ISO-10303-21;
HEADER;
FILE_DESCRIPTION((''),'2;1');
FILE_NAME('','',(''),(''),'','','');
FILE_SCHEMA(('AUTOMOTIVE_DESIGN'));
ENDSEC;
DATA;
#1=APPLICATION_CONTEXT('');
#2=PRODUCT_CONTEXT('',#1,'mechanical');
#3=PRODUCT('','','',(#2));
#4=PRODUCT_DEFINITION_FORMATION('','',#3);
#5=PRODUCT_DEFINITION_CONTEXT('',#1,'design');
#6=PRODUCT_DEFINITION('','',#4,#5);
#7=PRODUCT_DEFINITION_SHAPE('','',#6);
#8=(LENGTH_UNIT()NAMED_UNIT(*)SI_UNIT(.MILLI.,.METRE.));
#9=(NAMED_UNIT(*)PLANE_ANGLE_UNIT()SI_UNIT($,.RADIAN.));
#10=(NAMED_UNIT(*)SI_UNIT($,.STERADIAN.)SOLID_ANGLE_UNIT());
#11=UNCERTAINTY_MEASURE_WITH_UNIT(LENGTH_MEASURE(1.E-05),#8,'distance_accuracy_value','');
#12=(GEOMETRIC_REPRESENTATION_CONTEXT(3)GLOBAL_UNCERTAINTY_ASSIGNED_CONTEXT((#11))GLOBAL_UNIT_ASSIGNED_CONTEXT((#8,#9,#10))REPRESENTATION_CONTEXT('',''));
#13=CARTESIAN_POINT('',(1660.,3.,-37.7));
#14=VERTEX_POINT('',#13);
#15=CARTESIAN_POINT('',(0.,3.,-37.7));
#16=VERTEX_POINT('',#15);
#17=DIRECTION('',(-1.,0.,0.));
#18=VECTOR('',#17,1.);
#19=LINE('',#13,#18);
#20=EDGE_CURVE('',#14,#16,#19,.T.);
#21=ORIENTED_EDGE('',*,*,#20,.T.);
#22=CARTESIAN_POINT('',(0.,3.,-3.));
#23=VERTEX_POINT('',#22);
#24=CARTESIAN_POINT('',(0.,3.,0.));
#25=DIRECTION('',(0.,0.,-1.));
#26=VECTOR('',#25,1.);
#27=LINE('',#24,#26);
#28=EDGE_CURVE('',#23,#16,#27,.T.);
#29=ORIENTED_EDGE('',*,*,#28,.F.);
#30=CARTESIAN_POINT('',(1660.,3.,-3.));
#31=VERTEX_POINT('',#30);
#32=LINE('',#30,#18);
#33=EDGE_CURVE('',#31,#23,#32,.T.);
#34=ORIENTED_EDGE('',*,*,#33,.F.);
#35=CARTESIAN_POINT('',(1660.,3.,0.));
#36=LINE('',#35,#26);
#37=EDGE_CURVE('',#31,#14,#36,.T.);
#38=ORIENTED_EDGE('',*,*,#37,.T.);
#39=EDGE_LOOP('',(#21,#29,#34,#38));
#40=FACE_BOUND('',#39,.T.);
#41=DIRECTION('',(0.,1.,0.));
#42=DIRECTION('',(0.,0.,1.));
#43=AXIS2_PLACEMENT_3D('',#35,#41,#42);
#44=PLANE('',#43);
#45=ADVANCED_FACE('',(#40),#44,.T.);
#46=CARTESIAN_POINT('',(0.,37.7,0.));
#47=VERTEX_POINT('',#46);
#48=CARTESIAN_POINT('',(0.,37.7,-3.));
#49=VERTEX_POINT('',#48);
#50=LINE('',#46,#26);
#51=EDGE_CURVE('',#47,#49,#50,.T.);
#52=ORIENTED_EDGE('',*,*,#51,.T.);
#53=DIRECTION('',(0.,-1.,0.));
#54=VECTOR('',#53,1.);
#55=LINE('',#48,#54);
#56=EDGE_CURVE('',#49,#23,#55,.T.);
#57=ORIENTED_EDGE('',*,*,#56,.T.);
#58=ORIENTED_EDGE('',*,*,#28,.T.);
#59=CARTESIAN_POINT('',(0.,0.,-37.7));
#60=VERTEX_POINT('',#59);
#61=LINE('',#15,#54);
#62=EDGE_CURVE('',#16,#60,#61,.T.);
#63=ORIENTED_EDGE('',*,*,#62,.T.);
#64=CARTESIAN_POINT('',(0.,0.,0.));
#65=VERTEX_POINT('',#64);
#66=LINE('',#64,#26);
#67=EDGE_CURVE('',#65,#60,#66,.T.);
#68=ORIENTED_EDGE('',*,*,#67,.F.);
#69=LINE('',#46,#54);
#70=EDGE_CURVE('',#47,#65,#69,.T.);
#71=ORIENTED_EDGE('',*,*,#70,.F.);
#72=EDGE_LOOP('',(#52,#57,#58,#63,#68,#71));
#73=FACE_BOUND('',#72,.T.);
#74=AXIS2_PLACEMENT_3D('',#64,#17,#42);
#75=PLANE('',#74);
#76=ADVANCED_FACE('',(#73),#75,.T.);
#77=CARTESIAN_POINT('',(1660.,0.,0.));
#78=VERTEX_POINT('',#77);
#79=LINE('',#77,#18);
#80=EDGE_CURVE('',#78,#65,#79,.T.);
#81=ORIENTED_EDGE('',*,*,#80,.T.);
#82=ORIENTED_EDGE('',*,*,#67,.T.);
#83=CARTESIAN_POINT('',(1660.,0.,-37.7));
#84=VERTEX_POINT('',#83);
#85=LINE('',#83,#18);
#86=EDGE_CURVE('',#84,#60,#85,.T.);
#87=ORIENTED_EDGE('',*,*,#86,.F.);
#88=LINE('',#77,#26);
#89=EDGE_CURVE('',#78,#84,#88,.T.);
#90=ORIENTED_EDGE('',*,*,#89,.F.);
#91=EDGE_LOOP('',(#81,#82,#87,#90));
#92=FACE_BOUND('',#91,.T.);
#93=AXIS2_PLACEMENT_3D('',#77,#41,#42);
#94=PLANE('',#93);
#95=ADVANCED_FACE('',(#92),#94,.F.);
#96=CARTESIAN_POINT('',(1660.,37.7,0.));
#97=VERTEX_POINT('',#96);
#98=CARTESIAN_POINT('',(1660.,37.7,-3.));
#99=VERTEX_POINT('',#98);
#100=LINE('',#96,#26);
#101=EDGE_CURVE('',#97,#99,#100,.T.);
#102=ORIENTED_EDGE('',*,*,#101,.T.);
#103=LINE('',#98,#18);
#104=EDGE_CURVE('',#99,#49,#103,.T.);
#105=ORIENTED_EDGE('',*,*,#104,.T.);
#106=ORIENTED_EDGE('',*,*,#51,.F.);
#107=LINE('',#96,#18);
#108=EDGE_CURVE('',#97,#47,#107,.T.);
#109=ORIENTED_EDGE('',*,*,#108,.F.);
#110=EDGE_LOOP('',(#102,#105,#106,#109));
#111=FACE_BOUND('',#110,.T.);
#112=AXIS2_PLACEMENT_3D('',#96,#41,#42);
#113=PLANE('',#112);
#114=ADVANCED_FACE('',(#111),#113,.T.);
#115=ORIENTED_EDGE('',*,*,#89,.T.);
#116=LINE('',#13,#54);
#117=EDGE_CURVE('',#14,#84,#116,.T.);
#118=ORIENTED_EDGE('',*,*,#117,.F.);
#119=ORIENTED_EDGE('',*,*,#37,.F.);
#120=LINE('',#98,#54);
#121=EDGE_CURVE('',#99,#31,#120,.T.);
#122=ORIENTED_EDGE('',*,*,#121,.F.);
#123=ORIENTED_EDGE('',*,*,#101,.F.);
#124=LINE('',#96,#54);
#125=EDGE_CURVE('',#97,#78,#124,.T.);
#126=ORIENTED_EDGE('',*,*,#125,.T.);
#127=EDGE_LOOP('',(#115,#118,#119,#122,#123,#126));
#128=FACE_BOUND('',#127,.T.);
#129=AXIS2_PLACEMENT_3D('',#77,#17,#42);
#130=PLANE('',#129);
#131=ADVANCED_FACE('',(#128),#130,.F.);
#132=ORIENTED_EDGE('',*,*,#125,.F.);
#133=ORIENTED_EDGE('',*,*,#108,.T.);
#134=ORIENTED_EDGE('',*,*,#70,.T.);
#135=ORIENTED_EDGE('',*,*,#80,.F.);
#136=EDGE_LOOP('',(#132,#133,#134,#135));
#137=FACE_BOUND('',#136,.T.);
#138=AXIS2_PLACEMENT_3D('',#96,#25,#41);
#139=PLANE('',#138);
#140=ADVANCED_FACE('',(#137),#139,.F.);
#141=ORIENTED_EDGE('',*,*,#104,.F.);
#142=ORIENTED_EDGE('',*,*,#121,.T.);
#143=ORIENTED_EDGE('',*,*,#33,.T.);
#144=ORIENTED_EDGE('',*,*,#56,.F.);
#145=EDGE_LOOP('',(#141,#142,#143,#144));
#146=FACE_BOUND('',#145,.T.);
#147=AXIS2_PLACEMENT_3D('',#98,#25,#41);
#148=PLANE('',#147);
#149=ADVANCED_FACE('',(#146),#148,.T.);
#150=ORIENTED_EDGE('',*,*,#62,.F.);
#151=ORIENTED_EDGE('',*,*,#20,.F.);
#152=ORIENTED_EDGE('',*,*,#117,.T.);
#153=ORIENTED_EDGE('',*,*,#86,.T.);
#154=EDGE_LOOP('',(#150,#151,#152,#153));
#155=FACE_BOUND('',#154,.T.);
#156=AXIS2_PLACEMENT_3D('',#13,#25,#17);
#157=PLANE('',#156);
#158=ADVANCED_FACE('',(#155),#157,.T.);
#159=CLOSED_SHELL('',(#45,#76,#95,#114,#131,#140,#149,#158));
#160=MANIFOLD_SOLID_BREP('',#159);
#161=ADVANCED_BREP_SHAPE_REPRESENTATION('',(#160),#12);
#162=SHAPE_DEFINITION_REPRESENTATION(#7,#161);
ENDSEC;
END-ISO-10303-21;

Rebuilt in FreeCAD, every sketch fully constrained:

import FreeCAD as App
import Part
import Sketcher
from FreeCAD import Vector
Q = App.Units.Quantity

doc = App.newDocument("Part")
params = doc.addObject("Spreadsheet::Sheet", "Params")
for row, (alias, value) in enumerate([
    ("sketch1_width", "3 mm"),
    ("sketch1_width2", "37.7 mm"),
    ("pad1_length", "1660 mm"),
], start=1):
    params.set(f"A{row}", alias)
    params.set(f"B{row}", "=" + value)
    params.setAlias(f"B{row}", alias)

body = doc.addObject("PartDesign::Body", "Body")

sketch1 = body.newObject("Sketcher::SketchObject", "Sketch")
sketch1.AttachmentSupport = (doc.getObject("YZ_Plane"), [""])
sketch1.MapMode = "FlatFace"
sketch1.addGeometry(Part.LineSegment(Vector(37.7, 0, 0), Vector(0, 0, 0)), False)
sketch1.addGeometry(Part.LineSegment(Vector(0, 0, 0), Vector(0, -37.7, 0)), False)
sketch1.addGeometry(Part.LineSegment(Vector(0, -37.7, 0), Vector(3, -37.7, 0)), False)
sketch1.addGeometry(Part.LineSegment(Vector(3, -37.7, 0), Vector(3, -3, 0)), False)
sketch1.addGeometry(Part.LineSegment(Vector(3, -3, 0), Vector(37.7, -3, 0)), False)
sketch1.addGeometry(Part.LineSegment(Vector(37.7, -3, 0), Vector(37.7, 0, 0)), False)
sketch1.addConstraint(Sketcher.Constraint("Coincident", 0, 2, 1, 1))
sketch1.addConstraint(Sketcher.Constraint("Coincident", 1, 2, 2, 1))
sketch1.addConstraint(Sketcher.Constraint("Coincident", 2, 2, 3, 1))
sketch1.addConstraint(Sketcher.Constraint("Coincident", 3, 2, 4, 1))
sketch1.addConstraint(Sketcher.Constraint("Coincident", 4, 2, 5, 1))
sketch1.addConstraint(Sketcher.Constraint("Coincident", 5, 2, 0, 1))
sketch1.addConstraint(Sketcher.Constraint("Horizontal", 0))
sketch1.addConstraint(Sketcher.Constraint("Vertical", 1))
sketch1.addConstraint(Sketcher.Constraint("Horizontal", 2))
sketch1.addConstraint(Sketcher.Constraint("Vertical", 3))
sketch1.addConstraint(Sketcher.Constraint("Horizontal", 4))
sketch1.addConstraint(Sketcher.Constraint("Vertical", 5))
sketch1.addConstraint(Sketcher.Constraint("Coincident", 0, 2, -1, 1))
sketch1.addConstraint(Sketcher.Constraint("Equal", 0, 1))
sketch1.addConstraint(Sketcher.Constraint("Equal", 4, 3))
sketch1.addConstraint(Sketcher.Constraint("DistanceX", 2, 1, 2, 2, Q("3 mm")))
sketch1.addConstraint(Sketcher.Constraint("DistanceX", 0, 2, 0, 1, Q("37.7 mm")))
sketch1.setExpression("Constraints[15]", "Params.sketch1_width")
sketch1.setExpression("Constraints[16]", "Params.sketch1_width2")
pad1 = body.newObject("PartDesign::Pad", "Pad")
pad1.Profile = sketch1
pad1.setExpression("Length", "Params.pad1_length")

doc.recompute()
